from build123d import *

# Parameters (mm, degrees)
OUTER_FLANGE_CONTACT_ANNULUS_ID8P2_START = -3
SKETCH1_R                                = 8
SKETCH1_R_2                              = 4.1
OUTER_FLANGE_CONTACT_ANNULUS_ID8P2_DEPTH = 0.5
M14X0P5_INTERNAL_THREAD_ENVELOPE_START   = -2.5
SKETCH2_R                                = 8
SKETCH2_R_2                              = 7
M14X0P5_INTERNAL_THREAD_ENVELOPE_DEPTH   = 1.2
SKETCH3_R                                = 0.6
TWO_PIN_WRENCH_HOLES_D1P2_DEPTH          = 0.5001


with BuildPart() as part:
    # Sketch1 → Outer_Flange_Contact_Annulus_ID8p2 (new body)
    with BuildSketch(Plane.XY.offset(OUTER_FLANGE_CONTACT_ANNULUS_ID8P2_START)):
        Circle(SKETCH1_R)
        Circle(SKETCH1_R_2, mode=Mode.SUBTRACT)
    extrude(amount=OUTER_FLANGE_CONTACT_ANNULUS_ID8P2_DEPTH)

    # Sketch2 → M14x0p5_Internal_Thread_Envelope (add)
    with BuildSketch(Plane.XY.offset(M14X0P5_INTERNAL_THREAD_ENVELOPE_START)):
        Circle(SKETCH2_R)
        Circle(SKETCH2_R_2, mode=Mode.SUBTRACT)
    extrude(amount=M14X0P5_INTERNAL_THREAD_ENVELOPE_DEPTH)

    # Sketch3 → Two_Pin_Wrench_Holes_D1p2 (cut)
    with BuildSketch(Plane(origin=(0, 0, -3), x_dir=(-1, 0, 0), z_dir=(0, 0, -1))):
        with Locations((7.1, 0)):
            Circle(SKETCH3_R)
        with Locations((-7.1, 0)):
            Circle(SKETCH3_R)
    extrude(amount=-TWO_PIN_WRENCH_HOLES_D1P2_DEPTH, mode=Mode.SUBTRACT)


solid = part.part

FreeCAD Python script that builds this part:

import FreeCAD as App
import Part
import Sketcher

V = App.Vector

doc = App.newDocument("Part")
body = doc.addObject("PartDesign::Body", "Body")

sketch1 = doc.addObject("Sketcher::SketchObject", "Sketch")
body.addObject(sketch1)
sketch1.AttachmentSupport = (doc.XY_Plane, [""])
sketch1.MapMode = "FlatFace"
sketch1.AttachmentOffset = App.Placement(V(0, 0, -3), App.Rotation())
sketch1.addGeometry([
    Part.Circle(V(0, 0, 0), V(0, 0, 1), 8),
    Part.Circle(V(0, 0, 0), V(0, 0, 1), 4.1),
], False)
sketch1.addConstraint([
    Sketcher.Constraint("Coincident", 0, 3, -1, 1),
    Sketcher.Constraint("Coincident", 1, 3, -1, 1),
    Sketcher.Constraint("Diameter", 0, 16.0),
    Sketcher.Constraint("Diameter", 1, 8.2),
])
pad1 = doc.addObject("PartDesign::Pad", "Pad")
body.addObject(pad1)
pad1.Profile = sketch1
pad1.Length = 0.5

sketch2 = doc.addObject("Sketcher::SketchObject", "Sketch001")
body.addObject(sketch2)
sketch2.AttachmentSupport = (doc.XY_Plane, [""])
sketch2.MapMode = "FlatFace"
sketch2.AttachmentOffset = App.Placement(V(0, 0, -2.5), App.Rotation())
sketch2.addGeometry([
    Part.Circle(V(0, 0, 0), V(0, 0, 1), 8),
    Part.Circle(V(0, 0, 0), V(0, 0, 1), 7),
], False)
sketch2.addConstraint([
    Sketcher.Constraint("Coincident", 0, 3, -1, 1),
    Sketcher.Constraint("Coincident", 1, 3, -1, 1),
    Sketcher.Constraint("Diameter", 0, 16.0),
    Sketcher.Constraint("Diameter", 1, 14.0),
])
pad2 = doc.addObject("PartDesign::Pad", "Pad001")
body.addObject(pad2)
pad2.Profile = sketch2
pad2.Length = 1.2

sketch3 = doc.addObject("Sketcher::SketchObject", "Sketch002")
body.addObject(sketch3)
sketch3.AttachmentSupport = (doc.XY_Plane, [""])
sketch3.MapMode = "FlatFace"
sketch3.AttachmentOffset = App.Placement(V(0, 0, -3), App.Rotation())
sketch3.addGeometry([
    Part.Circle(V(-7.1, 0, 0), V(0, 0, 1), 0.6),
    Part.Circle(V(7.1, 0, 0), V(0, 0, 1), 0.6),
], False)
sketch3.addConstraint([
    Sketcher.Constraint("Equal", 0, 1),
    Sketcher.Constraint("Symmetric", 0, 3, 1, 3, -1, 1),
    Sketcher.Constraint("PointOnObject", 0, 3, -1),
    Sketcher.Constraint("Diameter", 0, 1.2),
    Sketcher.Constraint("DistanceX", 0, 3, -1, 1, 7.1),
])
pocket1 = doc.addObject("PartDesign::Pocket", "Pocket")
body.addObject(pocket1)
pocket1.Profile = sketch3
pocket1.Length = 0.5001
pocket1.Reversed = True

doc.recompute()
